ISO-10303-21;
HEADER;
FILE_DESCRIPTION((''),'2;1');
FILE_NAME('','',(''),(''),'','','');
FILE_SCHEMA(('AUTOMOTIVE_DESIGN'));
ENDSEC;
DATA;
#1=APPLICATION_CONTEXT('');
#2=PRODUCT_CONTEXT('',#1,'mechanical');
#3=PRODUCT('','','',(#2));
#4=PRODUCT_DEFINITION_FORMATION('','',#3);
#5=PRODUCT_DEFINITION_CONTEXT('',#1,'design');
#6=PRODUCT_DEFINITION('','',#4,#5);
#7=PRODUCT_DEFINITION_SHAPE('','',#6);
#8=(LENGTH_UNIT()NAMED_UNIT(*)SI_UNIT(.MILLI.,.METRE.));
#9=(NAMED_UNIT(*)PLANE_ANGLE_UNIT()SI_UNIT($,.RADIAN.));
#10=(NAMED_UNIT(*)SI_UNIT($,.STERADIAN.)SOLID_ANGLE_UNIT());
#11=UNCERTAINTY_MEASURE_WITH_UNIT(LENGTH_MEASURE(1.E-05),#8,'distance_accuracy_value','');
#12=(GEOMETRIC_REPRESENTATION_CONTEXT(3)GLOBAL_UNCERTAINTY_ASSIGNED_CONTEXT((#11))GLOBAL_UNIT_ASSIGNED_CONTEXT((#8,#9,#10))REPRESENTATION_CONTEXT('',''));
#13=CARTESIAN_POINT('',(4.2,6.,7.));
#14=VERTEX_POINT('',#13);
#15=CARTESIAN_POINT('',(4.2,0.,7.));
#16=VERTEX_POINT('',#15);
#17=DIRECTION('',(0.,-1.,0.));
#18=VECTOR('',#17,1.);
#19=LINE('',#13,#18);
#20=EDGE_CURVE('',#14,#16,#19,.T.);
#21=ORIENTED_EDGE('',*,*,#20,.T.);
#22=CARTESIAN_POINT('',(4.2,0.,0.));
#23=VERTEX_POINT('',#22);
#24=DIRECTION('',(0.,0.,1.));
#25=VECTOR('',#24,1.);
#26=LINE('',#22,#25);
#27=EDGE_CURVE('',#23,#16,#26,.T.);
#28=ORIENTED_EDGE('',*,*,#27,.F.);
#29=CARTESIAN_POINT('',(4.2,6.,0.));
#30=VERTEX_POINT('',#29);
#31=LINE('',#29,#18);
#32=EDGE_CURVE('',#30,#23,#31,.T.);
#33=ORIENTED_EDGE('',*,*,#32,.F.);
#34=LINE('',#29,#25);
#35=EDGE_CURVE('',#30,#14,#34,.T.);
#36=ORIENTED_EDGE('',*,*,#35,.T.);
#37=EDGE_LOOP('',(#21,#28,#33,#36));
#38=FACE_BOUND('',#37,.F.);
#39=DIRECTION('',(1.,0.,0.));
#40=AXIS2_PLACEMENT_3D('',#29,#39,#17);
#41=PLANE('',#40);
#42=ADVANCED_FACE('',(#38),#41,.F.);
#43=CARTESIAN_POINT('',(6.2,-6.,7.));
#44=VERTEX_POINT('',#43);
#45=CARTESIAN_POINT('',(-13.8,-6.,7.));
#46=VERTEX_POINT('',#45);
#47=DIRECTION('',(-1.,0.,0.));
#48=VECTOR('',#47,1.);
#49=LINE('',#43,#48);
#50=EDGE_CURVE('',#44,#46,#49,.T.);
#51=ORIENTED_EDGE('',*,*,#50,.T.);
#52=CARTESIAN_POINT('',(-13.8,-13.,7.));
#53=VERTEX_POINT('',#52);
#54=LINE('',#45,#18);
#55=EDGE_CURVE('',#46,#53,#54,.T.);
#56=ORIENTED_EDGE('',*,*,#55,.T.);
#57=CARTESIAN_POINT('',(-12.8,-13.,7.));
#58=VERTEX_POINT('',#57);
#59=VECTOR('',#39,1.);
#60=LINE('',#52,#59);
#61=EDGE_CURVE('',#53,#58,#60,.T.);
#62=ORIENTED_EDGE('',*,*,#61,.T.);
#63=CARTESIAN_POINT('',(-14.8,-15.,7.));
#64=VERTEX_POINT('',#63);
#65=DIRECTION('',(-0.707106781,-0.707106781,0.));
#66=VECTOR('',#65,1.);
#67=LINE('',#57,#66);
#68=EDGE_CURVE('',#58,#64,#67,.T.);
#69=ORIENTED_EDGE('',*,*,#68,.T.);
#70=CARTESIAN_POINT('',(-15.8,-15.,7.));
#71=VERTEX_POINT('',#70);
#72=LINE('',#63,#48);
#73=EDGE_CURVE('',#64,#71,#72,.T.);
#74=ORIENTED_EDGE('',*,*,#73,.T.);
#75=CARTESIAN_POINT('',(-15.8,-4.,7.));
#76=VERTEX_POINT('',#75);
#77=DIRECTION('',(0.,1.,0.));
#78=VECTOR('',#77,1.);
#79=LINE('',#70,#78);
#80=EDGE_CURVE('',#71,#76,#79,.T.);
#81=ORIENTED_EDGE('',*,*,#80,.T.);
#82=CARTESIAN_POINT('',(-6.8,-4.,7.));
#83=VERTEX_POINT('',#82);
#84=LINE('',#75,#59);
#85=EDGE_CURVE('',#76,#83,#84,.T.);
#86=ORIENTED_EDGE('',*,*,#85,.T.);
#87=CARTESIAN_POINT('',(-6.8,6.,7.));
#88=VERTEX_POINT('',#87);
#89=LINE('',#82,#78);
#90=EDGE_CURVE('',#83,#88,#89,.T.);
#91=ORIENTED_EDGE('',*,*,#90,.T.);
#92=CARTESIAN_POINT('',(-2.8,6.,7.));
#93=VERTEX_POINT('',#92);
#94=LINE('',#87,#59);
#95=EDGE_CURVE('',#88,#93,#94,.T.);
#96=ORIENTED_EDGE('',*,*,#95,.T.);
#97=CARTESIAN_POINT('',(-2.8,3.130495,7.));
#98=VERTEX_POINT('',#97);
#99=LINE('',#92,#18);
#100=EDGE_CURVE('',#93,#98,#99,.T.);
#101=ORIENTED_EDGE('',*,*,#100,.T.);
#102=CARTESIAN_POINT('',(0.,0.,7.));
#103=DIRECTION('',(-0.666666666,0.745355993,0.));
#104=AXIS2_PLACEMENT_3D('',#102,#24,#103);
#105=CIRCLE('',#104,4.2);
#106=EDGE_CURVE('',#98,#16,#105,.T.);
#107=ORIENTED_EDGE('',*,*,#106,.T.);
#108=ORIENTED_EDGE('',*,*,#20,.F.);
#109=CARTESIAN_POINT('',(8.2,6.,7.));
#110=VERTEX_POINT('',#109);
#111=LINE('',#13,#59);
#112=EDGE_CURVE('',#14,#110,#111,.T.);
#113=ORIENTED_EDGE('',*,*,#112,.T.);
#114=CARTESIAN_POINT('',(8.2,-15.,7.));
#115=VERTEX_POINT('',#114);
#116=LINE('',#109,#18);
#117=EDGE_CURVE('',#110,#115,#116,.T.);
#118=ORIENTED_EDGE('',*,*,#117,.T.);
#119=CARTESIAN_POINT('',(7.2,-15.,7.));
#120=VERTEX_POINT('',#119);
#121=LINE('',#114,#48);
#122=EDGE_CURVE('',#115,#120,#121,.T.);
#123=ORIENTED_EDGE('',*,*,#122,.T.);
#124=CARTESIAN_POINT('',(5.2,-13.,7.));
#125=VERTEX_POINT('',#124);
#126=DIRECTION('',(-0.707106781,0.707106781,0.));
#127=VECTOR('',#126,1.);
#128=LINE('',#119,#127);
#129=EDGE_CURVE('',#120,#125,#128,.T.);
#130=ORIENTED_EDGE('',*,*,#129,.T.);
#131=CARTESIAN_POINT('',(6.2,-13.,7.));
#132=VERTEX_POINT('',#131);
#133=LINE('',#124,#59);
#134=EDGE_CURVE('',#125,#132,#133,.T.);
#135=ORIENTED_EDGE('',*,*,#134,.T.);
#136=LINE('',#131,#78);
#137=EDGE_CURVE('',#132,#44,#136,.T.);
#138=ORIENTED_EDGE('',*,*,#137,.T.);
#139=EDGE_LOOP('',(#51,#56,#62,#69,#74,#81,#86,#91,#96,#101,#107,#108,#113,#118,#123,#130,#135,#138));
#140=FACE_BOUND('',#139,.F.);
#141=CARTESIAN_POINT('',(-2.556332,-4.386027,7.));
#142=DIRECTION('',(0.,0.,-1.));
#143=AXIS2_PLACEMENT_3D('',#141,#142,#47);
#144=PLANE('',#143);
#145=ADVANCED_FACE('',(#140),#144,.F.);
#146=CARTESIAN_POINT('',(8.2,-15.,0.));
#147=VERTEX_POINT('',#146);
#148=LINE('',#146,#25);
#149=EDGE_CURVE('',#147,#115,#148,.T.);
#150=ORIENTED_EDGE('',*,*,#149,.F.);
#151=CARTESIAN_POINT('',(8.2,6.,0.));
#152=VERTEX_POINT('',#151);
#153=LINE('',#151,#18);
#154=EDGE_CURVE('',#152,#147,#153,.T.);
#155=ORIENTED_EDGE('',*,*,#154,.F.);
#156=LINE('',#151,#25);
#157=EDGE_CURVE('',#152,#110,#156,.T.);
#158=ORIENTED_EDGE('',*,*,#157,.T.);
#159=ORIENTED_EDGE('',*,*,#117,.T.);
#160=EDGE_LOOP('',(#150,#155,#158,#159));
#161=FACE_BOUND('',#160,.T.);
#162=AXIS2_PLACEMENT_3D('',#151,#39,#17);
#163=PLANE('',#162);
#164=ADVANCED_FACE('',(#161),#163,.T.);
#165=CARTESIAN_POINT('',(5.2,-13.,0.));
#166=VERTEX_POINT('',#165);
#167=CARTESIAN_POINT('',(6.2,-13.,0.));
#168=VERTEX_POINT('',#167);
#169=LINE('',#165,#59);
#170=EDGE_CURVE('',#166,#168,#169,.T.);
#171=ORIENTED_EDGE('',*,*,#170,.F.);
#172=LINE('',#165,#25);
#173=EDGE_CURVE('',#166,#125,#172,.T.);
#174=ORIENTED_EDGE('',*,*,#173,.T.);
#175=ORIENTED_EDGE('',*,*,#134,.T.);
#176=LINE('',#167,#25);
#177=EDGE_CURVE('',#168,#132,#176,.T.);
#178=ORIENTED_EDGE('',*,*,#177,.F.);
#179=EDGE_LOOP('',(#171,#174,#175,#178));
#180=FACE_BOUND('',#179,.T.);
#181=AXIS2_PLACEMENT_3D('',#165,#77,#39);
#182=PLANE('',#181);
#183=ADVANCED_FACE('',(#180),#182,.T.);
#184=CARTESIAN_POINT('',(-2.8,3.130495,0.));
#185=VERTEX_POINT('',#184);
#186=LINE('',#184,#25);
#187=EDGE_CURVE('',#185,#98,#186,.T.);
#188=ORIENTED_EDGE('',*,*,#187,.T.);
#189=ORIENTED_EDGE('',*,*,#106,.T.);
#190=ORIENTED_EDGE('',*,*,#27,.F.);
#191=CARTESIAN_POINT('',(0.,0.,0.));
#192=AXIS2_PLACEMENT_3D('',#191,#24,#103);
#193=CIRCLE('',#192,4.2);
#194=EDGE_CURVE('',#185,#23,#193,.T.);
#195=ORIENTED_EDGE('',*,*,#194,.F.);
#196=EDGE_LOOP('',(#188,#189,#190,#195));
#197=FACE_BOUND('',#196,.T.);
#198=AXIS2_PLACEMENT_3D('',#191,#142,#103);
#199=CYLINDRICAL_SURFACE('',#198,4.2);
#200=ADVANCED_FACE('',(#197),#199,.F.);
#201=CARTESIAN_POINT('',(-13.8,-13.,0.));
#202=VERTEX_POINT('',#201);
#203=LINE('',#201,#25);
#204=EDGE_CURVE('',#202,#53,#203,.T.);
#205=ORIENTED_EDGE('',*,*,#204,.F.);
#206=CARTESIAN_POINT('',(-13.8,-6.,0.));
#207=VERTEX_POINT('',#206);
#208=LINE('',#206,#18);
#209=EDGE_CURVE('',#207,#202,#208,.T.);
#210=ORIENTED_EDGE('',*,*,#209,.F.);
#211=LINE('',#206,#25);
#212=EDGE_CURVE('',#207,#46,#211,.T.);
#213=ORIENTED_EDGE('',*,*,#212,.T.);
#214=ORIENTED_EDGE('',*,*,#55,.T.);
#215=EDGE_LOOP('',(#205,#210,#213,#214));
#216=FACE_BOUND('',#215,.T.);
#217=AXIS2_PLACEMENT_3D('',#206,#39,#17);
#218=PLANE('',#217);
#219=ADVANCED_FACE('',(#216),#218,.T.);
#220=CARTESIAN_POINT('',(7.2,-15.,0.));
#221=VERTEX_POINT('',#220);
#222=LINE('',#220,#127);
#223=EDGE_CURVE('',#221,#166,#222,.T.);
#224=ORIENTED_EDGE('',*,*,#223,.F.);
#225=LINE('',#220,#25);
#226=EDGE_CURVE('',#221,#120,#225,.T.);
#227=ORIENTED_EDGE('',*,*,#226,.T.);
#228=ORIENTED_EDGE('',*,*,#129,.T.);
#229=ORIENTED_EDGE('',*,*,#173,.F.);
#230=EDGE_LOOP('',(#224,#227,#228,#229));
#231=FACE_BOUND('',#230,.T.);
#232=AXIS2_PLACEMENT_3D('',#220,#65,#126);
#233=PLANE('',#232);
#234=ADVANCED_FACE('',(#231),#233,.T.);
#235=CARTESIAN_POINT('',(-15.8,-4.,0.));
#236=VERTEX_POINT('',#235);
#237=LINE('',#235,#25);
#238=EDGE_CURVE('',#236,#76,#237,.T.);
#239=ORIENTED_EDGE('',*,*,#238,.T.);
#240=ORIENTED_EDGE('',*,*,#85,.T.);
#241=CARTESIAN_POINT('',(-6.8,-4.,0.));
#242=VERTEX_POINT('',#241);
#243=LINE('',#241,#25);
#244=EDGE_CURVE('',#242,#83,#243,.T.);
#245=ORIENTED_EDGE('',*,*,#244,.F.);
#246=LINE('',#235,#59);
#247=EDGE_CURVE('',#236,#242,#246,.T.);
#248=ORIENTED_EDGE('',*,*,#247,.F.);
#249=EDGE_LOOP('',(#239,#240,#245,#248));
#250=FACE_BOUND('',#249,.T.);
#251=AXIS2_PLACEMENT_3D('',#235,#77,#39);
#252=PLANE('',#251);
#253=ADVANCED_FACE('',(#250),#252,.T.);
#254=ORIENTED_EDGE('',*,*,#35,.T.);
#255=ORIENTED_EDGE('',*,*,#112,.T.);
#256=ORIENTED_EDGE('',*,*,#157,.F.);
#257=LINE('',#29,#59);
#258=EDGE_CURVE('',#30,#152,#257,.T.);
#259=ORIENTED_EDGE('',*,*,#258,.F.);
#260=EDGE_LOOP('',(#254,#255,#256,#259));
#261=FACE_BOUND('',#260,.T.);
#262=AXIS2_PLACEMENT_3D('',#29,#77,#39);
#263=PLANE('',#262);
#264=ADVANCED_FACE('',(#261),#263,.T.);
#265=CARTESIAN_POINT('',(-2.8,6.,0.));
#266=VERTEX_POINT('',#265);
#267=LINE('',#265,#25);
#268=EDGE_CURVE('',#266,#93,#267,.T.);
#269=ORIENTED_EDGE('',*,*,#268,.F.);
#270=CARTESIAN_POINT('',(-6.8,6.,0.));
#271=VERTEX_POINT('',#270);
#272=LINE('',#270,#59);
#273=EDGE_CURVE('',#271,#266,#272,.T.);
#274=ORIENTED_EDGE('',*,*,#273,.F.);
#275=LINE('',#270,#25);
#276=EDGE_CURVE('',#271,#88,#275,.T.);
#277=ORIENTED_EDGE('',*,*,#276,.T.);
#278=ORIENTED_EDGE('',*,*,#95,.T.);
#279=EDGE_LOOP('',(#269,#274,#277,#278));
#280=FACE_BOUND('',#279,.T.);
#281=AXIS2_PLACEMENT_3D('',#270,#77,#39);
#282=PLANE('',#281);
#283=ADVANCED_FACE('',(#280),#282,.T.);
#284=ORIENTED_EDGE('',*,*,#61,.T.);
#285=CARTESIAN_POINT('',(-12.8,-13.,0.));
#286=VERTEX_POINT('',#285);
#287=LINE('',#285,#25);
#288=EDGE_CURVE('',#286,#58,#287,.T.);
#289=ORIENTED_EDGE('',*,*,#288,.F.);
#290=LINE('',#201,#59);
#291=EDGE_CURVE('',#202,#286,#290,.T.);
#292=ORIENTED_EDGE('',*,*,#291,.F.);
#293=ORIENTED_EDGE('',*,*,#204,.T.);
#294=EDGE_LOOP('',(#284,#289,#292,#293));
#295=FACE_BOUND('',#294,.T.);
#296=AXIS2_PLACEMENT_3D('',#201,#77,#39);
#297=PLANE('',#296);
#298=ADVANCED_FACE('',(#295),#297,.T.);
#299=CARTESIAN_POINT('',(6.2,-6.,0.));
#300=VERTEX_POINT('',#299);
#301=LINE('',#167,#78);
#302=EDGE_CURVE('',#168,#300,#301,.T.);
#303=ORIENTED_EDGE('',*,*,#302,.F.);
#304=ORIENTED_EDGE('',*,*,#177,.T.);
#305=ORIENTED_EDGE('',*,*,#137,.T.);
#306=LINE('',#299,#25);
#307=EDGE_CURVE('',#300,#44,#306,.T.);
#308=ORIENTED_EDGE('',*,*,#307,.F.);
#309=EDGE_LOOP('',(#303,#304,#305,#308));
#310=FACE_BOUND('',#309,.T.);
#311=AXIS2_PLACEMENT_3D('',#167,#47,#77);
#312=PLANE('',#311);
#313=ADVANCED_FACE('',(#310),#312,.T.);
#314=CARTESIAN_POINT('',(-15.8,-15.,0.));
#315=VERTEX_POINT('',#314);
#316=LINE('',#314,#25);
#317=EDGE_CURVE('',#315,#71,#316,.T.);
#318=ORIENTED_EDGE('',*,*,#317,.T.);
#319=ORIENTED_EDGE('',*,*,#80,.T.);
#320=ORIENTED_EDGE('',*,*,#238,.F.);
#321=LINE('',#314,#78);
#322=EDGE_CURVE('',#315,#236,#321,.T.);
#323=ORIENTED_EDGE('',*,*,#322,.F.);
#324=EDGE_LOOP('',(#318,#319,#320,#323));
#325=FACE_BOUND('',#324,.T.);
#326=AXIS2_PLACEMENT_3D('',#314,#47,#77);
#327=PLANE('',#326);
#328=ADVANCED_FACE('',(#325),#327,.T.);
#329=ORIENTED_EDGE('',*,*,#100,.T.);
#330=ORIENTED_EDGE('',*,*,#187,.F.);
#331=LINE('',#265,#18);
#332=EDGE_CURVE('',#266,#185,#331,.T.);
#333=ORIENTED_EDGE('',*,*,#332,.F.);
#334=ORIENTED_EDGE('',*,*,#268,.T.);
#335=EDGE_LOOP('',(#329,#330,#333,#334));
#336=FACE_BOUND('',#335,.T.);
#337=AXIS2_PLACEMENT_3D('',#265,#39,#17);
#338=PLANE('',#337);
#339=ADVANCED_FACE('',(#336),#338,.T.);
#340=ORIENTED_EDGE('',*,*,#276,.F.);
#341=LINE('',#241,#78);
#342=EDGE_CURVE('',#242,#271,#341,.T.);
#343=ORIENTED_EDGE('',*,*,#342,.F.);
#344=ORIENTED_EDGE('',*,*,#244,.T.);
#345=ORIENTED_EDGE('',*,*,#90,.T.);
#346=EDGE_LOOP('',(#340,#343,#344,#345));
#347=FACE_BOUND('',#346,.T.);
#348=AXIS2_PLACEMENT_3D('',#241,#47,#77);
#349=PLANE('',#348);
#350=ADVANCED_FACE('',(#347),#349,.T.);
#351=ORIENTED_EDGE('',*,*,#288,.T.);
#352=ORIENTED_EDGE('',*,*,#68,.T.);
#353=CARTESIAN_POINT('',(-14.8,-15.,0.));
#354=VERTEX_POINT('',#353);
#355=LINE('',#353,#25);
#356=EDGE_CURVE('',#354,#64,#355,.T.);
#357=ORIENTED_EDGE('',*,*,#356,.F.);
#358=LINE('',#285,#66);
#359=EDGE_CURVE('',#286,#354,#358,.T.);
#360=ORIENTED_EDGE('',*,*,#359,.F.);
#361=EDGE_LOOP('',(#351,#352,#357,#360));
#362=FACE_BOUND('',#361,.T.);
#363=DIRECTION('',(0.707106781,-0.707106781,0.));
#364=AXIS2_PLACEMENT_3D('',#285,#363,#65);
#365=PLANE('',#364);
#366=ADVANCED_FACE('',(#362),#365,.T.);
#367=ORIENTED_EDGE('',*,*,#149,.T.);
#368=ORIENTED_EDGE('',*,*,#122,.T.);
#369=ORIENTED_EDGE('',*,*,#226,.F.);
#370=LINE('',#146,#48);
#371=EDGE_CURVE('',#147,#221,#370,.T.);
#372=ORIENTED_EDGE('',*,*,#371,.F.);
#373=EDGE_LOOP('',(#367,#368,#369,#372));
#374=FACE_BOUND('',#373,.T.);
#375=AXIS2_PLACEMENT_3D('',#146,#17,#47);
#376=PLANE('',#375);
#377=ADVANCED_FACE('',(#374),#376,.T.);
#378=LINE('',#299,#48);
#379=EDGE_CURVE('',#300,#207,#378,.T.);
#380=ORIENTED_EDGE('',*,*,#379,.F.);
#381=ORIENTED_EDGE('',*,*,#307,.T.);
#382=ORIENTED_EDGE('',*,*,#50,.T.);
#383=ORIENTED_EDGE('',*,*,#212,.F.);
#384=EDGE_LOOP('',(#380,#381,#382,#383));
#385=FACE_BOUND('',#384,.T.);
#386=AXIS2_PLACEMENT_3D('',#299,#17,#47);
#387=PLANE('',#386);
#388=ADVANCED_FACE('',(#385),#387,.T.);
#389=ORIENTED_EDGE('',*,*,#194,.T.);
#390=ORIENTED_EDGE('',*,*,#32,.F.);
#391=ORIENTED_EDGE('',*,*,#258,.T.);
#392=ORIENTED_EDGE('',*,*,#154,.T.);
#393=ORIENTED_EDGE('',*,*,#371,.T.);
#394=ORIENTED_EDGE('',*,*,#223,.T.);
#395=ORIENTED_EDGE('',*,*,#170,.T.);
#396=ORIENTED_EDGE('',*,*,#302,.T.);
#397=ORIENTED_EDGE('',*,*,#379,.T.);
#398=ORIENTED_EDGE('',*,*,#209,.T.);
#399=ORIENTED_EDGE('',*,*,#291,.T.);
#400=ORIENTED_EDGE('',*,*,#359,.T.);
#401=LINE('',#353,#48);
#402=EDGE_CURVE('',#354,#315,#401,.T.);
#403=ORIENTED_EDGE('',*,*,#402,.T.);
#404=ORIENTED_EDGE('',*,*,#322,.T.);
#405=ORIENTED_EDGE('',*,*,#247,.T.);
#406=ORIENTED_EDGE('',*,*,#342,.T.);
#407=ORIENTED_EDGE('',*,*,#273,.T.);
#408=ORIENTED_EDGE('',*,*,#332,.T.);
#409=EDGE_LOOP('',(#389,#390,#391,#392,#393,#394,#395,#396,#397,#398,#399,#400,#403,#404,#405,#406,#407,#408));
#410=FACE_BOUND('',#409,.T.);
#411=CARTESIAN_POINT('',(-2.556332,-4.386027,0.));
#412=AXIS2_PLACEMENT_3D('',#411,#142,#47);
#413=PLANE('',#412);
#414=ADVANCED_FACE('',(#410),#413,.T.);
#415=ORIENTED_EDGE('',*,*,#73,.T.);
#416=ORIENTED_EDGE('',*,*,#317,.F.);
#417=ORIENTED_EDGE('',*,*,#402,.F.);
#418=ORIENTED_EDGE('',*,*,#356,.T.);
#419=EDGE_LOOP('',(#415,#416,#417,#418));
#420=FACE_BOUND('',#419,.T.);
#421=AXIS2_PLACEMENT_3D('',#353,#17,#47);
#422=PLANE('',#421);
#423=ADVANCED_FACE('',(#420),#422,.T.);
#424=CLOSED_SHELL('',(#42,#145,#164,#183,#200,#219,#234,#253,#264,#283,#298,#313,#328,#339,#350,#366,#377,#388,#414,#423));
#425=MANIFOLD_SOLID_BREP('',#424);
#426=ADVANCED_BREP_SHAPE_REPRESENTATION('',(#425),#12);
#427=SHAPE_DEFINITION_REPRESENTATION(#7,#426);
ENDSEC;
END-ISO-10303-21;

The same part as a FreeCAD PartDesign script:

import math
import FreeCAD as App
import Part
import Sketcher
from FreeCAD import Vector
Q = App.Units.Quantity

doc = App.newDocument("Part")
body = doc.addObject("PartDesign::Body", "Body")

# Sketch on XY plane
sketch1 = body.newObject("Sketcher::SketchObject", "Sketch")
sketch1.AttachmentSupport = (doc.getObject("XY_Plane"), [""])
sketch1.MapMode = "FlatFace"
sketch1.addGeometry([
    Part.ArcOfCircle(Part.Circle(Vector(0, 0, 0), Vector(0, 0, 1), 4.2), math.radians(132), math.radians(360)),  # 0
    Part.LineSegment(Vector(-2.8, 3.1, 0), Vector(-2.8, 6, 0)),  # 1
    Part.LineSegment(Vector(-2.8, 6, 0), Vector(-6.8, 6, 0)),  # 2
    Part.LineSegment(Vector(-6.8, 6, 0), Vector(-6.8, -4, 0)),  # 3
    Part.LineSegment(Vector(-6.8, -4, 0), Vector(-15.8, -4, 0)),  # 4
    Part.LineSegment(Vector(-15.8, -4, 0), Vector(-15.8, -15, 0)),  # 5
    Part.LineSegment(Vector(-15.8, -15, 0), Vector(-14.8, -15, 0)),  # 6
    Part.LineSegment(Vector(-14.8, -15, 0), Vector(-12.8, -13, 0)),  # 7
    Part.LineSegment(Vector(-12.8, -13, 0), Vector(-13.8, -13, 0)),  # 8
    Part.LineSegment(Vector(-13.8, -13, 0), Vector(-13.8, -6, 0)),  # 9
    Part.LineSegment(Vector(-13.8, -6, 0), Vector(6.2, -6, 0)),  # 10
    Part.LineSegment(Vector(6.2, -6, 0), Vector(6.2, -13, 0)),  # 11
    Part.LineSegment(Vector(6.2, -13, 0), Vector(5.2, -13, 0)),  # 12
    Part.LineSegment(Vector(5.2, -13, 0), Vector(7.2, -15, 0)),  # 13
    Part.LineSegment(Vector(7.2, -15, 0), Vector(8.2, -15, 0)),  # 14
    Part.LineSegment(Vector(8.2, -15, 0), Vector(8.2, 6, 0)),  # 15
    Part.LineSegment(Vector(8.2, 6, 0), Vector(4.2, 6, 0)),  # 16
    Part.LineSegment(Vector(4.2, 6, 0), Vector(4.2, 0, 0)),  # 17
], False)
sketch1.addConstraint([
    Sketcher.Constraint("Coincident", 0, 1, 1, 1),
    Sketcher.Constraint("Coincident", 1, 2, 2, 1),
    Sketcher.Constraint("Coincident", 2, 2, 3, 1),
    Sketcher.Constraint("Coincident", 3, 2, 4, 1),
    Sketcher.Constraint("Coincident", 4, 2, 5, 1),
    Sketcher.Constraint("Coincident", 5, 2, 6, 1),
    Sketcher.Constraint("Coincident", 6, 2, 7, 1),
    Sketcher.Constraint("Coincident", 7, 2, 8, 1),
    Sketcher.Constraint("Coincident", 8, 2, 9, 1),
    Sketcher.Constraint("Coincident", 9, 2, 10, 1),
    Sketcher.Constraint("Coincident", 10, 2, 11, 1),
    Sketcher.Constraint("Coincident", 11, 2, 12, 1),
    Sketcher.Constraint("Coincident", 12, 2, 13, 1),
    Sketcher.Constraint("Coincident", 13, 2, 14, 1),
    Sketcher.Constraint("Coincident", 14, 2, 15, 1),
    Sketcher.Constraint("Coincident", 15, 2, 16, 1),
    Sketcher.Constraint("Coincident", 16, 2, 17, 1),
    Sketcher.Constraint("Tangent", 17, 2, 0, 2),
    Sketcher.Constraint("Vertical", 1),
    Sketcher.Constraint("Horizontal", 2),
    Sketcher.Constraint("Vertical", 3),
    Sketcher.Constraint("Horizontal", 4),
    Sketcher.Constraint("Vertical", 5),
    Sketcher.Constraint("Horizontal", 6),
    Sketcher.Constraint("Horizontal", 8),
    Sketcher.Constraint("Vertical", 9),
    Sketcher.Constraint("Horizontal", 10),
    Sketcher.Constraint("Vertical", 11),
    Sketcher.Constraint("Horizontal", 12),
    Sketcher.Constraint("Horizontal", 14),
    Sketcher.Constraint("Vertical", 15),
    Sketcher.Constraint("Horizontal", 16),
    Sketcher.Constraint("Vertical", 17),
    Sketcher.Constraint("Coincident", 0, 3, -1, 1),
    Sketcher.Constraint("Perpendicular", 7, 13),
    Sketcher.Constraint("Horizontal", 8, 2, 11, 2),
    Sketcher.Constraint("Horizontal", 6, 2, 13, 2),
    Sketcher.Constraint("Horizontal", 2, 2, 15, 2),
    Sketcher.Constraint("Equal", 6, 8),
    Sketcher.Constraint("Equal", 8, 12),
    Sketcher.Constraint("Equal", 12, 14),
    Sketcher.Constraint("Equal", 2, 16),
    Sketcher.Constraint("Equal", 7, 13),
    Sketcher.Constraint("Radius", 0, Q("4.2 mm")),
    Sketcher.Constraint("DistanceX", 2, 2, 2, 1, Q("4 mm")),
    Sketcher.Constraint("DistanceX", 4, 2, 4, 1, Q("9 mm")),
    Sketcher.Constraint("DistanceX", 6, 1, 6, 2, Q("1 mm")),
    Sketcher.Constraint("DistanceX", 10, 1, 10, 2, Q("20 mm")),
    Sketcher.Constraint("DistanceY", 3, 2, 3, 1, Q("10 mm")),
    Sketcher.Constraint("DistanceY", 5, 2, 5, 1, Q("11 mm")),
    Sketcher.Constraint("DistanceY", 9, 1, 9, 2, Q("7 mm")),
    Sketcher.Constraint("DistanceY", 17, 2, 17, 1, Q("6 mm")),
    Sketcher.Constraint("DistanceY", 7, 2, -1, 1, Q("13 mm")),
])
pad1 = body.newObject("PartDesign::Pad", "Pad")
pad1.Profile = sketch1
pad1.Length = 7

doc.recompute()
